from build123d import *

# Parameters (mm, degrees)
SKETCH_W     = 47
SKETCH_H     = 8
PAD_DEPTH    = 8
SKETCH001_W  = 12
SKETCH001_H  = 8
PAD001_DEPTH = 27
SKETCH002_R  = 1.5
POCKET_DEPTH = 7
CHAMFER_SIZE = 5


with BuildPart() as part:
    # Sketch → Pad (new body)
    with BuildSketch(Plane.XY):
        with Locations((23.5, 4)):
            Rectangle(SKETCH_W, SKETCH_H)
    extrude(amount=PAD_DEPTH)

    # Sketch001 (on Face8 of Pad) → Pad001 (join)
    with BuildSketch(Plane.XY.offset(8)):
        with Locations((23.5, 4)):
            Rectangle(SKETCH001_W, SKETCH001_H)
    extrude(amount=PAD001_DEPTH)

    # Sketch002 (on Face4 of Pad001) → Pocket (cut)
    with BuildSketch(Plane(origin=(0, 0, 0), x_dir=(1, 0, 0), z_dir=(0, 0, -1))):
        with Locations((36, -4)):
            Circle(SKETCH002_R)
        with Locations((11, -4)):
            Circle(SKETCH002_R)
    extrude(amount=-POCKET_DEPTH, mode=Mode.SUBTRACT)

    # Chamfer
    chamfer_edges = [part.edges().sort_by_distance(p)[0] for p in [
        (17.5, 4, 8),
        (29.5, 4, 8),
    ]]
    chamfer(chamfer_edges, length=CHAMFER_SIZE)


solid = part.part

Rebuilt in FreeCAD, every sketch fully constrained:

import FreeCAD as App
import Part
import Sketcher

V = App.Vector
Q = App.Units.Quantity


def edges_at(feature, points):
    """Names of the edges that pass closest to the given points."""
    edges = feature.Shape.Edges
    near = lambda p: min(range(len(edges)), key=lambda i: edges[i].distToShape(Part.Vertex(*p))[0])
    return sorted({f"Edge{near(p) + 1}" for p in points})


def add_polygon(sketch, points):
    """Adds a closed chain of lines whose ends are joined by coincident constraints."""
    first, n = sketch.GeometryCount, len(points)
    for a, b in zip(points, points[1:] + points[:1]):
        sketch.addGeometry(Part.LineSegment(App.Vector(*a, 0), App.Vector(*b, 0)), False)
    for i in range(n):
        sketch.addConstraint(Sketcher.Constraint("Coincident", first + i, 2, first + (i + 1) % n, 1))

doc = App.newDocument("Part")
body = doc.addObject("PartDesign::Body", "Body")

sketch1 = body.newObject("Sketcher::SketchObject", "Sketch")
sketch1.AttachmentSupport = (doc.getObject("XY_Plane"), [""])
sketch1.MapMode = "FlatFace"
add_polygon(sketch1, [(0, 8), (0, 0), (47, 0), (47, 8)])
sketch1.addConstraint([
    Sketcher.Constraint("Vertical", 0),
    Sketcher.Constraint("Horizontal", 1),
    Sketcher.Constraint("Vertical", 2),
    Sketcher.Constraint("Horizontal", 3),
    Sketcher.Constraint("Coincident", 0, 2, -1, 1),
    Sketcher.Constraint("DistanceX", 1, 1, 1, 2, Q("47 mm")),
    Sketcher.Constraint("DistanceY", 0, 2, 0, 1, Q("8 mm")),
])
pad1 = body.newObject("PartDesign::Pad", "Pad")
pad1.Profile = sketch1
pad1.Length = 8

sketch2 = body.newObject("Sketcher::SketchObject", "Sketch001")
sketch2.AttachmentSupport = (doc.getObject("XY_Plane"), [""])
sketch2.MapMode = "FlatFace"
sketch2.AttachmentOffset = App.Placement(V(0, 0, 8), App.Rotation())
add_polygon(sketch2, [(18, 8), (18, 0), (30, 0), (30, 8)])
sketch2.addConstraint([
    Sketcher.Constraint("Vertical", 0),
    Sketcher.Constraint("Horizontal", 1),
    Sketcher.Constraint("Vertical", 2),
    Sketcher.Constraint("Horizontal", 3),
    Sketcher.Constraint("PointOnObject", 0, 2, -1),
    Sketcher.Constraint("DistanceX", 1, 1, 1, 2, Q("12 mm")),
    Sketcher.Constraint("DistanceY", 0, 2, 0, 1, Q("8 mm")),
    Sketcher.Constraint("DistanceX", -1, 1, 0, 2, Q("17.5 mm")),
])
pad2 = body.newObject("PartDesign::Pad", "Pad001")
pad2.Profile = sketch2
pad2.Length = 27

sketch3 = body.newObject("Sketcher::SketchObject", "Sketch002")
sketch3.AttachmentSupport = (doc.getObject("XY_Plane"), [""])
sketch3.MapMode = "FlatFace"
sketch3.addGeometry([
    Part.Circle(V(36, 4, 0), V(0, 0, 1), 1.5),
    Part.Circle(V(11, 4, 0), V(0, 0, 1), 1.5),
], False)
sketch3.addConstraint([
    Sketcher.Constraint("Equal", 0, 1),
    Sketcher.Constraint("Horizontal", 0, 3, 1, 3),
    Sketcher.Constraint("Diameter", 0, Q("3 mm")),
    Sketcher.Constraint("DistanceX", -1, 1, 0, 3, Q("36 mm")),
    Sketcher.Constraint("DistanceY", -1, 1, 0, 3, Q("4 mm")),
    Sketcher.Constraint("DistanceX", -1, 1, 1, 3, Q("11 mm")),
])
pocket1 = body.newObject("PartDesign::Pocket", "Pocket")
pocket1.Profile = sketch3
pocket1.Length = 7
pocket1.Reversed = True
doc.recompute()

chamfer = body.newObject("PartDesign::Chamfer", "Chamfer")
chamfer.Base = (pocket1, edges_at(pocket1, [(17.5, 4, 8), (29.5, 4, 8)]))
chamfer.Size = 5

doc.recompute()
